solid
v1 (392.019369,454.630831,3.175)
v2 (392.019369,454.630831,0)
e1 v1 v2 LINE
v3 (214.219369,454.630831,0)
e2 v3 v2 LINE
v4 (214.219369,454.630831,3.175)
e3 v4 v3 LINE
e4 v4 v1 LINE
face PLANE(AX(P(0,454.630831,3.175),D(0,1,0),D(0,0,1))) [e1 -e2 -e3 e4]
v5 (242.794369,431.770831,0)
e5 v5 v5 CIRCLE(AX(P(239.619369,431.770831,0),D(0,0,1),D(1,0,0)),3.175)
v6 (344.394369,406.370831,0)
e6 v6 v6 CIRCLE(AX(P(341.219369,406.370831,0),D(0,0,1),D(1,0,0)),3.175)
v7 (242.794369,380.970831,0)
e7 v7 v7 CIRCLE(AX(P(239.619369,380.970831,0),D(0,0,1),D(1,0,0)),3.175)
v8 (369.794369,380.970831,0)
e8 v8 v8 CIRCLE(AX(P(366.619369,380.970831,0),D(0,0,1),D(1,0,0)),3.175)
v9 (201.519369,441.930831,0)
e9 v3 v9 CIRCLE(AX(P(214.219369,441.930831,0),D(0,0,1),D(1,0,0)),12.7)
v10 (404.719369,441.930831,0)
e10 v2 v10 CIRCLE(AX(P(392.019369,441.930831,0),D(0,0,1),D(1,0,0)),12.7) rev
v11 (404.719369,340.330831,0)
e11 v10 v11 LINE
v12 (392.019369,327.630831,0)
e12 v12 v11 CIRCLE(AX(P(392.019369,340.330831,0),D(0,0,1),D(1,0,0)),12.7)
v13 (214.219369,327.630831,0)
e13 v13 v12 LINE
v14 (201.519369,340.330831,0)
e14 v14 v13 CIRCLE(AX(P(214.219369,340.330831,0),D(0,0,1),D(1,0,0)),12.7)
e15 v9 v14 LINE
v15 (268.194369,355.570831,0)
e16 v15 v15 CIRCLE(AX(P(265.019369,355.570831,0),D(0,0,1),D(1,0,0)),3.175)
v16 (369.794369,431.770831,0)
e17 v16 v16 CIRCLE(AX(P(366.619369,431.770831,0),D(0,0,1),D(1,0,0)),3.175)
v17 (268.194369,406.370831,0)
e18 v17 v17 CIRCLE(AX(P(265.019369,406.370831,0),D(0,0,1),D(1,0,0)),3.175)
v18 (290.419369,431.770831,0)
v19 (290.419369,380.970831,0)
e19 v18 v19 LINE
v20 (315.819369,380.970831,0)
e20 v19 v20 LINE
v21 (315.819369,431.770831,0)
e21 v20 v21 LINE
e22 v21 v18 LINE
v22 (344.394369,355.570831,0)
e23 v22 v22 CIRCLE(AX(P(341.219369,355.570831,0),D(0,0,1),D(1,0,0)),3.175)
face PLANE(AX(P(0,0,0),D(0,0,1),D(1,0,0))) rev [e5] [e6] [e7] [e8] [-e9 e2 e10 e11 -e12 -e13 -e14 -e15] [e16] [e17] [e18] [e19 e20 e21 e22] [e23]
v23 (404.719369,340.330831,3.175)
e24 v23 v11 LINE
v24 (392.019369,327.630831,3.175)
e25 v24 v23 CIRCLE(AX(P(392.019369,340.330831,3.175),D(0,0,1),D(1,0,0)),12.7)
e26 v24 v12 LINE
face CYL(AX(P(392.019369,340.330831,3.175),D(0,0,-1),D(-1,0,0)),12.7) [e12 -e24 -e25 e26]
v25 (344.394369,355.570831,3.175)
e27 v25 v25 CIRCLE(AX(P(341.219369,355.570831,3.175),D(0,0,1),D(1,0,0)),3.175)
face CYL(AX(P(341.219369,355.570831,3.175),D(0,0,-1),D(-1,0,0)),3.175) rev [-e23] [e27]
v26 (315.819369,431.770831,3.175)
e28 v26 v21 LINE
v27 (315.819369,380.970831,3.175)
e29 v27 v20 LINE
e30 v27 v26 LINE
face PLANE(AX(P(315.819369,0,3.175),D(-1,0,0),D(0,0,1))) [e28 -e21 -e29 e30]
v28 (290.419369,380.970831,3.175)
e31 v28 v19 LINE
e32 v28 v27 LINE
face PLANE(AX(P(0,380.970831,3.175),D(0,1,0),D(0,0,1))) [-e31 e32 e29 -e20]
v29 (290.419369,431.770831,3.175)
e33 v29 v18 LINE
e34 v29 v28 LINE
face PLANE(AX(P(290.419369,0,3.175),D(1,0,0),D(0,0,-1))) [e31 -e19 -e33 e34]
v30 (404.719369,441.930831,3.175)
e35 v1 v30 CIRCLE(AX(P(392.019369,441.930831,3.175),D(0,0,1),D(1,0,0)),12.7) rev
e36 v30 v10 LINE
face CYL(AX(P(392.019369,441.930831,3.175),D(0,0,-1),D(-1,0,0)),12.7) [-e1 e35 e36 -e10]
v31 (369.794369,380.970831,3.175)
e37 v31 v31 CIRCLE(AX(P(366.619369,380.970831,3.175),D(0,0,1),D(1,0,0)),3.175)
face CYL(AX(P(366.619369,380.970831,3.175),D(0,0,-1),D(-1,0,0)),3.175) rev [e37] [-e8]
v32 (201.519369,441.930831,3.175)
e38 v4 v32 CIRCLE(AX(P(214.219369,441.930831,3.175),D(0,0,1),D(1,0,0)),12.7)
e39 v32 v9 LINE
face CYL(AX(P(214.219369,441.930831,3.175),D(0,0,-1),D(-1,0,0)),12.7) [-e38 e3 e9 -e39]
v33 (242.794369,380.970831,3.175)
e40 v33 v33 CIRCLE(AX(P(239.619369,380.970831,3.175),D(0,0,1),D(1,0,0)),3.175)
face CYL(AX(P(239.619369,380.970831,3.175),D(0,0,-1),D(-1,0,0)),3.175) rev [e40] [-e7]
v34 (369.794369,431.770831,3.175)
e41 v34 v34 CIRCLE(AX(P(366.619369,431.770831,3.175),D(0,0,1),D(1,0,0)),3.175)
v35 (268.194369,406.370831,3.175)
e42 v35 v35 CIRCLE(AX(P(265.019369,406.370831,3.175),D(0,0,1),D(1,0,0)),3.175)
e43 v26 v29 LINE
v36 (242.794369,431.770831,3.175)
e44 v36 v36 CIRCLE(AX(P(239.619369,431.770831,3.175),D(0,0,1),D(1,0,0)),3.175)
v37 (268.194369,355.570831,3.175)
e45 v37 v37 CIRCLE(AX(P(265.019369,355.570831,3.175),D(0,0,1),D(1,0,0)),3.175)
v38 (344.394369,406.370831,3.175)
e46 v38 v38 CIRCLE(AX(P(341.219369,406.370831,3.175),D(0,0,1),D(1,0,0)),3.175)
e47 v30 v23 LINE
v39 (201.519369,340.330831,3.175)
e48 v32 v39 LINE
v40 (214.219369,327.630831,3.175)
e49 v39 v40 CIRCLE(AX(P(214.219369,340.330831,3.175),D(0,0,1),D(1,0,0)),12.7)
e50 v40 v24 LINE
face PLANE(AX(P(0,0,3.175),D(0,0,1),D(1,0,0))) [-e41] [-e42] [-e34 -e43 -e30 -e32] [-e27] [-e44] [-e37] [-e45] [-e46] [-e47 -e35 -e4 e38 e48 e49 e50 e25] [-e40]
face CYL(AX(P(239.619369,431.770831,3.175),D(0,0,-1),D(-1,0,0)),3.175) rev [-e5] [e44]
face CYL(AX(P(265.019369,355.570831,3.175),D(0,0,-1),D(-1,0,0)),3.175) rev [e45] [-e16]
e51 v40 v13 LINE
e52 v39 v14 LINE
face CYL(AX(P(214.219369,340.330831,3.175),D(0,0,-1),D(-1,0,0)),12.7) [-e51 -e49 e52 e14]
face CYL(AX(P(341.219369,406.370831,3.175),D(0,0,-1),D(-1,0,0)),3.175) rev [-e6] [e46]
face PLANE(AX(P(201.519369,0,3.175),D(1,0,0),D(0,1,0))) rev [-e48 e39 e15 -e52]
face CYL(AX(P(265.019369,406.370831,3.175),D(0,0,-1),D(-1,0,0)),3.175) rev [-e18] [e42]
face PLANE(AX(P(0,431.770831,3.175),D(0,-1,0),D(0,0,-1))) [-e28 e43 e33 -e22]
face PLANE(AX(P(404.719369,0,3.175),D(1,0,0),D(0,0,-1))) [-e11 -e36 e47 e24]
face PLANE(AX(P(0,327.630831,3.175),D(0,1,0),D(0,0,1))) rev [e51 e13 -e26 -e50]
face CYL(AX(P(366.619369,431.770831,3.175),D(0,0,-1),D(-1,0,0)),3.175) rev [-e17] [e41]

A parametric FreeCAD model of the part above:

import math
import FreeCAD as App
import Part
import Sketcher
Q = App.Units.Quantity


def add_polygon(sketch, points):
    """Adds a closed chain of lines whose ends are joined by coincident constraints."""
    first, n = sketch.GeometryCount, len(points)
    for a, b in zip(points, points[1:] + points[:1]):
        sketch.addGeometry(Part.LineSegment(App.Vector(*a, 0), App.Vector(*b, 0)), False)
    for i in range(n):
        sketch.addConstraint(Sketcher.Constraint("Coincident", first + i, 2, first + (i + 1) % n, 1))

doc = App.newDocument("Part")
params = doc.addObject("Spreadsheet::Sheet", "Params")
for row, (alias, value) in enumerate([
    ("sketch1_radius", "0.5 in"),
    ("sketch1_diameter", "0.25 in"),
    ("sketch1_width", "7 in"),
    ("sketch1_width2", "1 in"),
    ("sketch1_height", "4 in"),
    ("pad1_length", "0.125 in"),
], start=1):
    params.set(f"A{row}", alias)
    params.set(f"B{row}", "=" + value)
    params.setAlias(f"B{row}", alias)

body = doc.addObject("PartDesign::Body", "Body")

# Sketch on XY plane
sketch1 = body.newObject("Sketcher::SketchObject", "Sketch")
sketch1.AttachmentSupport = (doc.getObject("XY_Plane"), [""])
sketch1.MapMode = "FlatFace"
sketch1.addGeometry(Part.LineSegment(App.Vector(392, 454.6, 0), App.Vector(214.2, 454.6, 0)), False)  # 0
sketch1.addGeometry(Part.ArcOfCircle(Part.Circle(App.Vector(214.2, 441.9, 0), App.Vector(0, 0, 1), 12.7), math.radians(90), math.radians(180)), False)  # 1
sketch1.addGeometry(Part.LineSegment(App.Vector(201.5, 441.9, 0), App.Vector(201.5, 340.3, 0)), False)  # 2
sketch1.addGeometry(Part.ArcOfCircle(Part.Circle(App.Vector(214.2, 340.3, 0), App.Vector(0, 0, 1), 12.7), math.radians(180), math.radians(270)), False)  # 3
sketch1.addGeometry(Part.LineSegment(App.Vector(214.2, 327.6, 0), App.Vector(392, 327.6, 0)), False)  # 4
sketch1.addGeometry(Part.ArcOfCircle(Part.Circle(App.Vector(392, 340.3, 0), App.Vector(0, 0, 1), 12.7), math.radians(-90), math.radians(0)), False)  # 5
sketch1.addGeometry(Part.LineSegment(App.Vector(404.7, 340.3, 0), App.Vector(404.7, 441.9, 0)), False)  # 6
sketch1.addGeometry(Part.ArcOfCircle(Part.Circle(App.Vector(392, 441.9, 0), App.Vector(0, 0, 1), 12.7), math.radians(0), math.radians(90)), False)  # 7
sketch1.addGeometry(Part.Circle(App.Vector(341.2, 355.6, 0), App.Vector(0, 0, 1), 3.2), False)  # 8
sketch1.addGeometry(Part.Circle(App.Vector(366.6, 381, 0), App.Vector(0, 0, 1), 3.2), False)  # 9
sketch1.addGeometry(Part.Circle(App.Vector(265, 355.6, 0), App.Vector(0, 0, 1), 3.2), False)  # 10
sketch1.addGeometry(Part.Circle(App.Vector(239.6, 381, 0), App.Vector(0, 0, 1), 3.2), False)  # 11
sketch1.addGeometry(Part.Circle(App.Vector(341.2, 406.4, 0), App.Vector(0, 0, 1), 3.2), False)  # 12
sketch1.addGeometry(Part.Circle(App.Vector(366.6, 431.8, 0), App.Vector(0, 0, 1), 3.2), False)  # 13
add_polygon(sketch1, [(290.4, 381), (290.4, 431.8), (315.8, 431.8), (315.8, 381)])  # lines 14-17
sketch1.addGeometry(Part.Circle(App.Vector(265, 406.4, 0), App.Vector(0, 0, 1), 3.2), False)  # 18
sketch1.addGeometry(Part.Circle(App.Vector(239.6, 431.8, 0), App.Vector(0, 0, 1), 3.2), False)  # 19
sketch1.addConstraint(Sketcher.Constraint("Tangent", 0, 2, 1, 1))
sketch1.addConstraint(Sketcher.Constraint("Tangent", 1, 2, 2, 1))
sketch1.addConstraint(Sketcher.Constraint("Tangent", 2, 2, 3, 1))
sketch1.addConstraint(Sketcher.Constraint("Tangent", 3, 2, 4, 1))
sketch1.addConstraint(Sketcher.Constraint("Tangent", 4, 2, 5, 1))
sketch1.addConstraint(Sketcher.Constraint("Tangent", 5, 2, 6, 1))
sketch1.addConstraint(Sketcher.Constraint("Tangent", 6, 2, 7, 1))
sketch1.addConstraint(Sketcher.Constraint("Tangent", 7, 2, 0, 1))
sketch1.addConstraint(Sketcher.Constraint("Horizontal", 0))
sketch1.addConstraint(Sketcher.Constraint("Vertical", 2))
sketch1.addConstraint(Sketcher.Constraint("Horizontal", 4))
sketch1.addConstraint(Sketcher.Constraint("Vertical", 6))
sketch1.addConstraint(Sketcher.Constraint("Vertical", 14))
sketch1.addConstraint(Sketcher.Constraint("Horizontal", 15))
sketch1.addConstraint(Sketcher.Constraint("Vertical", 16))
sketch1.addConstraint(Sketcher.Constraint("Horizontal", 17))
sketch1.addConstraint(Sketcher.Constraint("Equal", 1, 3))
sketch1.addConstraint(Sketcher.Constraint("Equal", 3, 5))
sketch1.addConstraint(Sketcher.Constraint("Equal", 5, 7))
sketch1.addConstraint(Sketcher.Constraint("Equal", 8, 9))
sketch1.addConstraint(Sketcher.Constraint("Equal", 9, 10))
sketch1.addConstraint(Sketcher.Constraint("Equal", 10, 11))
sketch1.addConstraint(Sketcher.Constraint("Equal", 11, 12))
sketch1.addConstraint(Sketcher.Constraint("Equal", 12, 13))
sketch1.addConstraint(Sketcher.Constraint("Equal", 13, 18))
sketch1.addConstraint(Sketcher.Constraint("Equal", 18, 19))
sketch1.addConstraint(Sketcher.Constraint("Horizontal", 8, 3, 10, 3))
sketch1.addConstraint(Sketcher.Constraint("Horizontal", 9, 3, 11, 3))
sketch1.addConstraint(Sketcher.Constraint("Horizontal", 12, 3, 18, 3))
sketch1.addConstraint(Sketcher.Constraint("Horizontal", 13, 3, 19, 3))
sketch1.addConstraint(Sketcher.Constraint("Horizontal", 19, 3, 14, 2))
sketch1.addConstraint(Sketcher.Constraint("Horizontal", 11, 3, 16, 2))
sketch1.addConstraint(Sketcher.Constraint("Vertical", 8, 3, 12, 3))
sketch1.addConstraint(Sketcher.Constraint("Vertical", 9, 3, 13, 3))
sketch1.addConstraint(Sketcher.Constraint("Vertical", 10, 3, 18, 3))
sketch1.addConstraint(Sketcher.Constraint("Vertical", 11, 3, 19, 3))
sketch1.addConstraint(Sketcher.Constraint("Radius", 1, Q("0.5 in")))
sketch1.addConstraint(Sketcher.Constraint("Diameter", 8, Q("0.25 in")))
sketch1.addConstraint(Sketcher.Constraint("DistanceX", 0, 2, 0, 1, Q("7 in")))
sketch1.addConstraint(Sketcher.Constraint("DistanceX", 15, 1, 15, 2, Q("1 in")))
sketch1.addConstraint(Sketcher.Constraint("DistanceY", 2, 2, 2, 1, Q("4 in")))
sketch1.addConstraint(Sketcher.Constraint("DistanceY", 14, 1, 14, 2, Q("2 in")))
sketch1.addConstraint(Sketcher.Constraint("DistanceX", 8, 3, 5, 3, Q("2 in")))
sketch1.addConstraint(Sketcher.Constraint("DistanceX", 8, 3, 9, 3, Q("1 in")))
sketch1.addConstraint(Sketcher.Constraint("DistanceY", 8, 3, 9, 3, Q("1 in")))
sketch1.addConstraint(Sketcher.Constraint("DistanceX", 3, 3, 10, 3, Q("2 in")))
sketch1.addConstraint(Sketcher.Constraint("DistanceX", 11, 3, 10, 3, Q("1 in")))
sketch1.addConstraint(Sketcher.Constraint("DistanceY", 9, 3, 12, 3, Q("1 in")))
sketch1.addConstraint(Sketcher.Constraint("DistanceX", 18, 3, 14, 2, Q("1 in")))
sketch1.addConstraint(Sketcher.Constraint("DistanceY", 5, 3, 8, 3, Q("0.6 in")))
sketch1.addConstraint(Sketcher.Constraint("DistanceX", -1, 1, 1, 3, Q("214.219369 mm")))
sketch1.addConstraint(Sketcher.Constraint("DistanceY", -1, 1, 1, 3, Q("441.930831 mm")))
sketch1.setExpression("Constraints[40]", "Params.sketch1_radius")
sketch1.setExpression("Constraints[41]", "Params.sketch1_diameter")
sketch1.setExpression("Constraints[42]", "Params.sketch1_width")
sketch1.setExpression("Constraints[43]", "Params.sketch1_width2")
sketch1.setExpression("Constraints[44]", "Params.sketch1_height")
pad1 = body.newObject("PartDesign::Pad", "Pad")
pad1.Profile = sketch1
pad1.setExpression("Length", "Params.pad1_length")

doc.recompute()
